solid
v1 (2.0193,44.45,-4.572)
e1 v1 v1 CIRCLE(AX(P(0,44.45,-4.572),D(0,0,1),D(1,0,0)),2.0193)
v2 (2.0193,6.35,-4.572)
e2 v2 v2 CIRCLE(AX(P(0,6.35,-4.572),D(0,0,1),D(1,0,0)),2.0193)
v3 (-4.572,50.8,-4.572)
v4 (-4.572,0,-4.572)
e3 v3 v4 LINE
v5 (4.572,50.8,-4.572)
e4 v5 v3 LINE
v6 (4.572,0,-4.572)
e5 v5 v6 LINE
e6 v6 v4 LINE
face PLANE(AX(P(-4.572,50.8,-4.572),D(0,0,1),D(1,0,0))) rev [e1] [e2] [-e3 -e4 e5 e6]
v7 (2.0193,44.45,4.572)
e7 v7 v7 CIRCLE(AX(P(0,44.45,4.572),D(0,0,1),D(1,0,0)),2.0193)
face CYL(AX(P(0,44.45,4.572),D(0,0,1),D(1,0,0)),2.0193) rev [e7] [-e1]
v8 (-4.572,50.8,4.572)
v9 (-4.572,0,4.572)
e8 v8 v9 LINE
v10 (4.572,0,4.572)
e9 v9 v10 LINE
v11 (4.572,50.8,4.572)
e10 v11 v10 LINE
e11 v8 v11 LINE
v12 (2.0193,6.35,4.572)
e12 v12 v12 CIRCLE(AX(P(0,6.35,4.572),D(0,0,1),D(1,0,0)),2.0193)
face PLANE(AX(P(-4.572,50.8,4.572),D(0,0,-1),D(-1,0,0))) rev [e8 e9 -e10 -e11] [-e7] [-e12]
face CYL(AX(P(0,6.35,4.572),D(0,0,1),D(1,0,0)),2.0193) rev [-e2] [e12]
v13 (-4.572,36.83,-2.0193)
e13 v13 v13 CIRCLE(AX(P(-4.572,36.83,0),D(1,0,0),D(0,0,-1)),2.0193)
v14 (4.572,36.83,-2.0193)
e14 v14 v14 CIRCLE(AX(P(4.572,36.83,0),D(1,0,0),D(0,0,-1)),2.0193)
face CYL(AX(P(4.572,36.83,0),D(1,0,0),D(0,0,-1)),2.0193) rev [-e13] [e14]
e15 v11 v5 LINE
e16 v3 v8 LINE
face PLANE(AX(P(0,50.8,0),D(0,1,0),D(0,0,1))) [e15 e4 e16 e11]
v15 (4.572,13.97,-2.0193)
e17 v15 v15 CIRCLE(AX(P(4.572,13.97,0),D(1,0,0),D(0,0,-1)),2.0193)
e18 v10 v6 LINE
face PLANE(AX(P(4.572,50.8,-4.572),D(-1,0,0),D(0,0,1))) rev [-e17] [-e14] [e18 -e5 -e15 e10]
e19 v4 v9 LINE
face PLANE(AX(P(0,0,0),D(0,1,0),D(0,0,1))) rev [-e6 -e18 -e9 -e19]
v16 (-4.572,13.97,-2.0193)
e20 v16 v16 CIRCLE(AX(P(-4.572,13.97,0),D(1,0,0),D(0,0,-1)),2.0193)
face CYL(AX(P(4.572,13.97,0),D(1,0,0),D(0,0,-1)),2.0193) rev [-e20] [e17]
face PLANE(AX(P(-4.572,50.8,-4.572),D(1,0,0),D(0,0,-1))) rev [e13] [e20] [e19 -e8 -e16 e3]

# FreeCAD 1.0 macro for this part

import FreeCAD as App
import Part
import Sketcher

V = App.Vector
Q = App.Units.Quantity


def add_polygon(sketch, points):
    """Adds a closed chain of lines whose ends are joined by coincident constraints."""
    first, n = sketch.GeometryCount, len(points)
    for a, b in zip(points, points[1:] + points[:1]):
        sketch.addGeometry(Part.LineSegment(App.Vector(*a, 0), App.Vector(*b, 0)), False)
    for i in range(n):
        sketch.addConstraint(Sketcher.Constraint("Coincident", first + i, 2, first + (i + 1) % n, 1))

doc = App.newDocument("Part")
params = doc.addObject("Spreadsheet::Sheet", "Params")
for row, (alias, value) in enumerate([
    ("sketch1_width", "0.36 in"),
    ("pad1_length", "2 in"),
    ("sketch2_diameter", "0.159 in"),
    ("hole_diameter", "0.159 in"),
    ("sketch3_diameter", "0.159 in"),
    ("hole2_diameter", "0.159 in"),
], start=1):
    params.set(f"A{row}", alias)
    params.set(f"B{row}", "=" + value)
    params.setAlias(f"B{row}", alias)

body = doc.addObject("PartDesign::Body", "Body")

# Sketch on XZ plane
sketch1 = doc.addObject("Sketcher::SketchObject", "Sketch")
body.addObject(sketch1)
sketch1.AttachmentSupport = (doc.XZ_Plane, [""])
sketch1.MapMode = "FlatFace"
add_polygon(sketch1, [(-5, -5), (-5, 5), (5, 5), (5, -5)])  # lines 0-3
sketch1.addConstraint([
    Sketcher.Constraint("Vertical", 0),
    Sketcher.Constraint("Horizontal", 1),
    Sketcher.Constraint("Vertical", 2),
    Sketcher.Constraint("Horizontal", 3),
    Sketcher.Constraint("Symmetric", 0, 2, 2, 2, -1, 1),
    Sketcher.Constraint("Equal", 3, 0),
    Sketcher.Constraint("DistanceX", 1, 1, 1, 2, Q("0.36 in")),
])
sketch1.setExpression("Constraints[10]", "Params.sketch1_width")
pad1 = doc.addObject("PartDesign::Pad", "Pad")
body.addObject(pad1)
pad1.Profile = sketch1
pad1.setExpression("Length", "Params.pad1_length")
pad1.Reversed = True

# Sketch on XY plane
sketch2 = doc.addObject("Sketcher::SketchObject", "Sketch001")
body.addObject(sketch2)
sketch2.AttachmentSupport = (doc.XY_Plane, [""])
sketch2.MapMode = "FlatFace"
sketch2.AttachmentOffset = App.Placement(V(0, 0, 0.18 * 25.4), App.Rotation())
sketch2.addGeometry([
    Part.Circle(V(0, 44.5, 0), V(0, 0, 1), 2),
    Part.Circle(V(0, 6.3, 0), V(0, 0, 1), 2),
], False)
sketch2.addConstraint([
    Sketcher.Constraint("Equal", 0, 1),
    Sketcher.Constraint("PointOnObject", 0, 3, -2),
    Sketcher.Constraint("PointOnObject", 1, 3, -2),
    Sketcher.Constraint("Diameter", 0, Q("0.159 in")),
    Sketcher.Constraint("DistanceY", 1, 3, 0, 3, Q("1.5 in")),
    Sketcher.Constraint("DistanceY", -1, 1, 0, 3, Q("1.75 in")),
])
sketch2.setExpression("Constraints[3]", "Params.sketch2_diameter")
doc.recompute()
hole = doc.addObject("PartDesign::Hole", "Hole")
body.addObject(hole)
hole.Profile = sketch2
hole.ThreadType = "None"
hole.setExpression("Diameter", "Params.hole_diameter")
hole.DepthType = "ThroughAll"

# Sketch on YZ plane
sketch3 = doc.addObject("Sketcher::SketchObject", "Sketch002")
body.addObject(sketch3)
sketch3.AttachmentSupport = (doc.YZ_Plane, [""])
sketch3.MapMode = "FlatFace"
sketch3.AttachmentOffset = App.Placement(V(0, 0, 0.18 * 25.4), App.Rotation())
sketch3.addGeometry([
    Part.Circle(V(36.8, 0, 0), V(0, 0, 1), 2),
    Part.Circle(V(14, 0, 0), V(0, 0, 1), 2),
], False)
sketch3.addConstraint([
    Sketcher.Constraint("Equal", 0, 1),
    Sketcher.Constraint("PointOnObject", 0, 3, -1),
    Sketcher.Constraint("PointOnObject", 1, 3, -1),
    Sketcher.Constraint("Diameter", 0, Q("0.159 in")),
    Sketcher.Constraint("DistanceX", 1, 3, 0, 3, Q("0.9 in")),
    Sketcher.Constraint("DistanceX", -1, 1, 0, 3, Q("1.45 in")),
])
sketch3.setExpression("Constraints[3]", "Params.sketch3_diameter")
doc.recompute()
hole2 = doc.addObject("PartDesign::Hole", "Hole001")
body.addObject(hole2)
hole2.Profile = sketch3
hole2.ThreadType = "None"
hole2.setExpression("Diameter", "Params.hole2_diameter")
hole2.DepthType = "ThroughAll"

doc.recompute()
